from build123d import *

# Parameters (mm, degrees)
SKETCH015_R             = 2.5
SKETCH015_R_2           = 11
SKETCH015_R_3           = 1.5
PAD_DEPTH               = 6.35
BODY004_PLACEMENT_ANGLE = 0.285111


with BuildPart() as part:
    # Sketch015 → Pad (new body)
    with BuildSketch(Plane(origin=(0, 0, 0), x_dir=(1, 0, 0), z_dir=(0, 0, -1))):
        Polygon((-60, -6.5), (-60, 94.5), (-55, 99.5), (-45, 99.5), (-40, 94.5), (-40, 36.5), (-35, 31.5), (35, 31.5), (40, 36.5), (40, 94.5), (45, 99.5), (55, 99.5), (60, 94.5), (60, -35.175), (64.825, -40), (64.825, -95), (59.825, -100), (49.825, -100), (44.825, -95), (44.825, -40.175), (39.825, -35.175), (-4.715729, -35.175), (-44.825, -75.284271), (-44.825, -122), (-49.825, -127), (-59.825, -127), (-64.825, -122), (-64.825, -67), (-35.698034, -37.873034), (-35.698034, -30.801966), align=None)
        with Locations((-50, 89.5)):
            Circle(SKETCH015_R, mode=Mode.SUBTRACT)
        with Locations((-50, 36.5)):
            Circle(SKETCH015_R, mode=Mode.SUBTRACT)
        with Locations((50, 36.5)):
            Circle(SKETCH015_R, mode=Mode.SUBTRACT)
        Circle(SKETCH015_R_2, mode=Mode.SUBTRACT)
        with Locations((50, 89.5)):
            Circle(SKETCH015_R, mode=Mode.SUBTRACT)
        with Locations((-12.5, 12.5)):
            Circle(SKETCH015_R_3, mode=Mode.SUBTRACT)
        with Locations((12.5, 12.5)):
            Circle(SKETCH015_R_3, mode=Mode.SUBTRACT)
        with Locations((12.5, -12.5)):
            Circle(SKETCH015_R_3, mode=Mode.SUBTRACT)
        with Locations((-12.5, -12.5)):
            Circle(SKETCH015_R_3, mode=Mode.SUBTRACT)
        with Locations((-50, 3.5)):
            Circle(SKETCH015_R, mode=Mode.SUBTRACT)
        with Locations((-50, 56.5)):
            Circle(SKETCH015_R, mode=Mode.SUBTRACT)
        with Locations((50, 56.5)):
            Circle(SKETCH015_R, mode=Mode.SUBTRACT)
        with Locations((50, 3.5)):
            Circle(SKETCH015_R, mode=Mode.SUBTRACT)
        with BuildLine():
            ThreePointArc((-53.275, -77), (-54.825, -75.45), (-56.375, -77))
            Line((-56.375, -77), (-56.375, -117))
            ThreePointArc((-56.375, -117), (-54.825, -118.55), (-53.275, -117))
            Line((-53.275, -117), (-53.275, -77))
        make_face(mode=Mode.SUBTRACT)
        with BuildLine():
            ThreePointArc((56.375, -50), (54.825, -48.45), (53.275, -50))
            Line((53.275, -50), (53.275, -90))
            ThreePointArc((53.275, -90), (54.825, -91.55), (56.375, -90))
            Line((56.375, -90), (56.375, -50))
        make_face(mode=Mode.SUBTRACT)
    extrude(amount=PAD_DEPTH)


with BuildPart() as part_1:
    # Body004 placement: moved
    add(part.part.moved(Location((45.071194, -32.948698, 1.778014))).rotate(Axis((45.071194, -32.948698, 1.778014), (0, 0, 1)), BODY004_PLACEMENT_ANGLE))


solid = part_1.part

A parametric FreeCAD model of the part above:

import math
import FreeCAD as App
import Part
import Sketcher
Q = App.Units.Quantity

doc = App.newDocument("Part")
body = doc.addObject("PartDesign::Body", "Body")

sketch1 = body.newObject("Sketcher::SketchObject", "Sketch")
sketch1.AttachmentSupport = (doc.getObject("XY_Plane"), [""])
sketch1.MapMode = "FlatFace"
sketch1.addGeometry([
    Part.LineSegment(App.Vector(-60, -94.5, 0), App.Vector(-60, 6.5, 0)),
    Part.LineSegment(App.Vector(-60, 6.5, 0), App.Vector(-35.7, 30.8, 0)),
    Part.LineSegment(App.Vector(-35.7, 30.8, 0), App.Vector(-35.7, 37.9, 0)),
    Part.LineSegment(App.Vector(-35.7, 37.9, 0), App.Vector(-64.8, 67, 0)),
    Part.LineSegment(App.Vector(-64.8, 67, 0), App.Vector(-64.8, 122, 0)),
    Part.LineSegment(App.Vector(-64.8, 122, 0), App.Vector(-59.8, 127, 0)),
    Part.LineSegment(App.Vector(-59.8, 127, 0), App.Vector(-49.8, 127, 0)),
    Part.LineSegment(App.Vector(-49.8, 127, 0), App.Vector(-44.8, 122, 0)),
    Part.LineSegment(App.Vector(-44.8, 122, 0), App.Vector(-44.8, 75.3, 0)),
    Part.LineSegment(App.Vector(-44.8, 75.3, 0), App.Vector(-4.7, 35.2, 0)),
    Part.LineSegment(App.Vector(-4.7, 35.2, 0), App.Vector(39.8, 35.2, 0)),
    Part.LineSegment(App.Vector(39.8, 35.2, 0), App.Vector(44.8, 40.2, 0)),
    Part.LineSegment(App.Vector(44.8, 40.2, 0), App.Vector(44.8, 95, 0)),
    Part.LineSegment(App.Vector(44.8, 95, 0), App.Vector(49.8, 100, 0)),
    Part.LineSegment(App.Vector(49.8, 100, 0), App.Vector(59.8, 100, 0)),
    Part.LineSegment(App.Vector(59.8, 100, 0), App.Vector(64.8, 95, 0)),
    Part.LineSegment(App.Vector(64.8, 95, 0), App.Vector(64.8, 40, 0)),
    Part.LineSegment(App.Vector(64.8, 40, 0), App.Vector(60, 35.2, 0)),
    Part.LineSegment(App.Vector(60, 35.2, 0), App.Vector(60, -94.5, 0)),
    Part.LineSegment(App.Vector(60, -94.5, 0), App.Vector(55, -99.5, 0)),
    Part.LineSegment(App.Vector(55, -99.5, 0), App.Vector(45, -99.5, 0)),
    Part.LineSegment(App.Vector(45, -99.5, 0), App.Vector(40, -94.5, 0)),
    Part.LineSegment(App.Vector(40, -94.5, 0), App.Vector(40, -36.5, 0)),
    Part.LineSegment(App.Vector(40, -36.5, 0), App.Vector(35, -31.5, 0)),
    Part.LineSegment(App.Vector(35, -31.5, 0), App.Vector(-35, -31.5, 0)),
    Part.LineSegment(App.Vector(-35, -31.5, 0), App.Vector(-40, -36.5, 0)),
    Part.LineSegment(App.Vector(-40, -36.5, 0), App.Vector(-40, -94.5, 0)),
    Part.LineSegment(App.Vector(-40, -94.5, 0), App.Vector(-45, -99.5, 0)),
    Part.LineSegment(App.Vector(-45, -99.5, 0), App.Vector(-55, -99.5, 0)),
    Part.LineSegment(App.Vector(-55, -99.5, 0), App.Vector(-60, -94.5, 0)),
    Part.LineSegment(App.Vector(56.4, 50, 0), App.Vector(56.4, 90, 0)),
    Part.ArcOfCircle(Part.Circle(App.Vector(54.8, 90, 0), App.Vector(0, 0, 1), 1.6), math.radians(0), math.radians(180)),
    Part.LineSegment(App.Vector(53.3, 90, 0), App.Vector(53.3, 50, 0)),
    Part.ArcOfCircle(Part.Circle(App.Vector(54.8, 50, 0), App.Vector(0, 0, 1), 1.6), math.radians(180), math.radians(360)),
    Part.LineSegment(App.Vector(-53.3, 77, 0), App.Vector(-53.3, 117, 0)),
    Part.ArcOfCircle(Part.Circle(App.Vector(-54.8, 117, 0), App.Vector(0, 0, 1), 1.6), math.radians(0), math.radians(180)),
    Part.LineSegment(App.Vector(-56.4, 117, 0), App.Vector(-56.4, 77, 0)),
    Part.ArcOfCircle(Part.Circle(App.Vector(-54.8, 77, 0), App.Vector(0, 0, 1), 1.6), math.radians(180), math.radians(360)),
    Part.Circle(App.Vector(50, -3.5, 0), App.Vector(0, 0, 1), 2.5),
    Part.Circle(App.Vector(50, -36.5, 0), App.Vector(0, 0, 1), 2.5),
    Part.Circle(App.Vector(12.5, 12.5, 0), App.Vector(0, 0, 1), 1.5),
    Part.Circle(App.Vector(12.5, -12.5, 0), App.Vector(0, 0, 1), 1.5),
    Part.Circle(App.Vector(50, -56.5, 0), App.Vector(0, 0, 1), 2.5),
    Part.Circle(App.Vector(50, -89.5, 0), App.Vector(0, 0, 1), 2.5),
    Part.Circle(App.Vector(-12.5, 12.5, 0), App.Vector(0, 0, 1), 1.5),
    Part.Circle(App.Vector(0, 0, 0), App.Vector(0, 0, 1), 11),
    Part.Circle(App.Vector(-12.5, -12.5, 0), App.Vector(0, 0, 1), 1.5),
    Part.Circle(App.Vector(-50, -3.5, 0), App.Vector(0, 0, 1), 2.5),
    Part.Circle(App.Vector(-50, -36.5, 0), App.Vector(0, 0, 1), 2.5),
    Part.Circle(App.Vector(-50, -56.5, 0), App.Vector(0, 0, 1), 2.5),
    Part.Circle(App.Vector(-50, -89.5, 0), App.Vector(0, 0, 1), 2.5),
], False)
sketch1.addConstraint([
    Sketcher.Constraint("Coincident", 0, 2, 1, 1),
    Sketcher.Constraint("Coincident", 1, 2, 2, 1),
    Sketcher.Constraint("Coincident", 2, 2, 3, 1),
    Sketcher.Constraint("Coincident", 3, 2, 4, 1),
    Sketcher.Constraint("Coincident", 4, 2, 5, 1),
    Sketcher.Constraint("Coincident", 5, 2, 6, 1),
    Sketcher.Constraint("Coincident", 6, 2, 7, 1),
    Sketcher.Constraint("Coincident", 7, 2, 8, 1),
    Sketcher.Constraint("Coincident", 8, 2, 9, 1),
    Sketcher.Constraint("Coincident", 9, 2, 10, 1),
    Sketcher.Constraint("Coincident", 10, 2, 11, 1),
    Sketcher.Constraint("Coincident", 11, 2, 12, 1),
    Sketcher.Constraint("Coincident", 12, 2, 13, 1),
    Sketcher.Constraint("Coincident", 13, 2, 14, 1),
    Sketcher.Constraint("Coincident", 14, 2, 15, 1),
    Sketcher.Constraint("Coincident", 15, 2, 16, 1),
    Sketcher.Constraint("Coincident", 16, 2, 17, 1),
    Sketcher.Constraint("Coincident", 17, 2, 18, 1),
    Sketcher.Constraint("Coincident", 18, 2, 19, 1),
    Sketcher.Constraint("Coincident", 19, 2, 20, 1),
    Sketcher.Constraint("Coincident", 20, 2, 21, 1),
    Sketcher.Constraint("Coincident", 21, 2, 22, 1),
    Sketcher.Constraint("Coincident", 22, 2, 23, 1),
    Sketcher.Constraint("Coincident", 23, 2, 24, 1),
    Sketcher.Constraint("Coincident", 24, 2, 25, 1),
    Sketcher.Constraint("Coincident", 25, 2, 26, 1),
    Sketcher.Constraint("Coincident", 26, 2, 27, 1),
    Sketcher.Constraint("Coincident", 27, 2, 28, 1),
    Sketcher.Constraint("Coincident", 28, 2, 29, 1),
    Sketcher.Constraint("Coincident", 29, 2, 0, 1),
    Sketcher.Constraint("Tangent", 30, 2, 31, 1),
    Sketcher.Constraint("Tangent", 31, 2, 32, 1),
    Sketcher.Constraint("Tangent", 32, 2, 33, 1),
    Sketcher.Constraint("Tangent", 33, 2, 30, 1),
    Sketcher.Constraint("Tangent", 34, 2, 35, 1),
    Sketcher.Constraint("Tangent", 35, 2, 36, 1),
    Sketcher.Constraint("Tangent", 36, 2, 37, 1),
    Sketcher.Constraint("Tangent", 37, 2, 34, 1),
    Sketcher.Constraint("Vertical", 0),
    Sketcher.Constraint("Vertical", 2),
    Sketcher.Constraint("Vertical", 4),
    Sketcher.Constraint("Horizontal", 6),
    Sketcher.Constraint("Vertical", 8),
    Sketcher.Constraint("Horizontal", 10),
    Sketcher.Constraint("Vertical", 12),
    Sketcher.Constraint("Horizontal", 14),
    Sketcher.Constraint("Vertical", 16),
    Sketcher.Constraint("Vertical", 18),
    Sketcher.Constraint("Horizontal", 20),
    Sketcher.Constraint("Vertical", 22),
    Sketcher.Constraint("Horizontal", 24),
    Sketcher.Constraint("Vertical", 26),
    Sketcher.Constraint("Horizontal", 28),
    Sketcher.Constraint("Vertical", 30),
    Sketcher.Constraint("Vertical", 32),
    Sketcher.Constraint("Vertical", 34),
    Sketcher.Constraint("Vertical", 36),
    Sketcher.Constraint("Coincident", 45, 3, -1, 1),
    Sketcher.Constraint("Equal", 33, 35),
    Sketcher.Constraint("Equal", 38, 39),
    Sketcher.Constraint("Equal", 40, 41),
    Sketcher.Constraint("Equal", 39, 42),
    Sketcher.Constraint("Equal", 42, 43),
    Sketcher.Constraint("Equal", 41, 44),
    Sketcher.Constraint("Equal", 44, 46),
    Sketcher.Constraint("Equal", 43, 47),
    Sketcher.Constraint("Equal", 47, 48),
    Sketcher.Constraint("Equal", 48, 49),
    Sketcher.Constraint("Equal", 49, 50),
    Sketcher.Constraint("Symmetric", 41, 3, 44, 3, -1, 1),
    Sketcher.Constraint("Symmetric", 40, 3, 46, 3, -1, 1),
    Sketcher.Constraint("Symmetric", 40, 3, 44, 3, -2),
    Sketcher.Constraint("Symmetric", 38, 3, 47, 3, -2),
    Sketcher.Constraint("Symmetric", 39, 3, 48, 3, -2),
    Sketcher.Constraint("Symmetric", 42, 3, 49, 3, -2),
    Sketcher.Constraint("Symmetric", 43, 3, 50, 3, -2),
    Sketcher.Constraint("Symmetric", 22, 2, 25, 2, -2),
    Sketcher.Constraint("Symmetric", 20, 2, 27, 2, -2),
    Sketcher.Constraint("Symmetric", 18, 2, 29, 2, -2),
    Sketcher.Constraint("Perpendicular", 1, 3),
    Sketcher.Constraint("Perpendicular", 3, 5),
    Sketcher.Constraint("Perpendicular", 5, 7),
    Sketcher.Constraint("Parallel", 7, 9),
    Sketcher.Constraint("Perpendicular", 9, 11),
    Sketcher.Constraint("Parallel", 11, 13),
    Sketcher.Constraint("Perpendicular", 13, 15),
    Sketcher.Constraint("Perpendicular", 15, 17),
    Sketcher.Constraint("Parallel", 17, 19),
    Sketcher.Constraint("Perpendicular", 19, 21),
    Sketcher.Constraint("Parallel", 21, 23),
    Sketcher.Constraint("Perpendicular", 23, 25),
    Sketcher.Constraint("Parallel", 25, 27),
    Sketcher.Constraint("Perpendicular", 27, 29),
    Sketcher.Constraint("Horizontal", 4, 2, 7, 2),
    Sketcher.Constraint("Horizontal", 12, 2, 15, 2),
    Sketcher.Constraint("Horizontal", 10, 2, 17, 2),
    Sketcher.Constraint("Horizontal", 18, 2, 21, 2),
    Sketcher.Constraint("Horizontal", 48, 3, 22, 2),
    Sketcher.Constraint("Horizontal", 21, 2, 26, 2),
    Sketcher.Constraint("Vertical", 38, 3, 39, 3),
    Sketcher.Constraint("Vertical", 39, 3, 42, 3),
    Sketcher.Constraint("Vertical", 42, 3, 43, 3),
    Sketcher.Constraint("Equal", 6, 14),
    Sketcher.Constraint("Equal", 14, 20),
    Sketcher.Constraint("Equal", 4, 16),
    Sketcher.Constraint("Equal", 32, 34),
    Sketcher.Constraint("Equal", 7, 11),
    Sketcher.Constraint("Equal", 11, 13),
    Sketcher.Constraint("Equal", 15, 19),
    Sketcher.Constraint("Equal", 21, 23),
    Sketcher.Constraint("Diameter", 38, Q("5 mm")),
    Sketcher.Constraint("Diameter", 40, Q("3 mm")),
    Sketcher.Constraint("Diameter", 45, Q("22 mm")),
    Sketcher.Constraint("DistanceX", 6, 1, 6, 2, Q("10 mm")),
    Sketcher.Constraint("DistanceX", 24, 2, 24, 1, Q("70 mm")),
    Sketcher.Constraint("DistanceY", 0, 1, 0, 2, Q("101 mm")),
    Sketcher.Constraint("DistanceY", 4, 1, 4, 2, Q("55 mm")),
    Sketcher.Constraint("DistanceY", 22, 1, 22, 2, Q("58 mm")),
    Sketcher.Constraint("DistanceY", 30, 1, 30, 2, Q("40 mm")),
    Sketcher.Constraint("Radius", 31, Q("1.55 mm")),
    Sketcher.Constraint("DistanceY", -1, 1, 31, 3, Q("90 mm")),
    Sketcher.Constraint("DistanceY", -1, 1, 35, 3, Q("117 mm")),
    Sketcher.Constraint("DistanceX", -1, 1, 38, 3, Q("50 mm")),
    Sketcher.Constraint("DistanceX", 0, 2, -1, 1, Q("60 mm")),
    Sketcher.Constraint("DistanceY", -1, 1, 3, 2, Q("67 mm")),
    Sketcher.Constraint("DistanceY", -1, 1, 12, 2, Q("95 mm")),
    Sketcher.Constraint("DistanceY", 39, 3, 38, 3, Q("33 mm")),
    Sketcher.Constraint("DistanceY", 38, 3, 40, 3, Q("16 mm")),
    Sketcher.Constraint("DistanceY", 41, 3, 40, 3, Q("25 mm")),
    Sketcher.Constraint("DistanceY", 42, 3, 39, 3, Q("20 mm")),
    Sketcher.Constraint("DistanceY", 43, 3, 42, 3, Q("33 mm")),
    Sketcher.Constraint("DistanceX", 44, 3, 40, 3, Q("25 mm")),
    Sketcher.Constraint("DistanceX", 3, 2, 37, 3, Q("10 mm")),
    Sketcher.Constraint("DistanceX", 10, 2, 33, 3, Q("15 mm")),
    Sketcher.Constraint("DistanceY", 12, 1, 12, 2, Q("54.825 mm")),
    Sketcher.Constraint("DistanceX", 35, 3, 31, 3, Q("109.65 mm")),
    Sketcher.Constraint("DistanceX", 10, 1, 10, 2, Q("44.540729 mm")),
    Sketcher.Constraint("Distance", 1, Q("34.36817 mm")),
])
pad1 = body.newObject("PartDesign::Pad", "Pad")
pad1.Profile = sketch1
pad1.Length = 6.35
pad1.Reversed = True
body2 = doc.addObject("PartDesign::Body", "Body001")
doc.recompute()

body.Placement = App.Placement(App.Vector(45.071194, -32.948698, 1.778014), App.Rotation(App.Vector(0, 0, 1), 0.285111))
boolean = body2.newObject("PartDesign::Boolean", "Boolean")
boolean.Type = "Fuse"
boolean.addObjects([body])

doc.recompute()
